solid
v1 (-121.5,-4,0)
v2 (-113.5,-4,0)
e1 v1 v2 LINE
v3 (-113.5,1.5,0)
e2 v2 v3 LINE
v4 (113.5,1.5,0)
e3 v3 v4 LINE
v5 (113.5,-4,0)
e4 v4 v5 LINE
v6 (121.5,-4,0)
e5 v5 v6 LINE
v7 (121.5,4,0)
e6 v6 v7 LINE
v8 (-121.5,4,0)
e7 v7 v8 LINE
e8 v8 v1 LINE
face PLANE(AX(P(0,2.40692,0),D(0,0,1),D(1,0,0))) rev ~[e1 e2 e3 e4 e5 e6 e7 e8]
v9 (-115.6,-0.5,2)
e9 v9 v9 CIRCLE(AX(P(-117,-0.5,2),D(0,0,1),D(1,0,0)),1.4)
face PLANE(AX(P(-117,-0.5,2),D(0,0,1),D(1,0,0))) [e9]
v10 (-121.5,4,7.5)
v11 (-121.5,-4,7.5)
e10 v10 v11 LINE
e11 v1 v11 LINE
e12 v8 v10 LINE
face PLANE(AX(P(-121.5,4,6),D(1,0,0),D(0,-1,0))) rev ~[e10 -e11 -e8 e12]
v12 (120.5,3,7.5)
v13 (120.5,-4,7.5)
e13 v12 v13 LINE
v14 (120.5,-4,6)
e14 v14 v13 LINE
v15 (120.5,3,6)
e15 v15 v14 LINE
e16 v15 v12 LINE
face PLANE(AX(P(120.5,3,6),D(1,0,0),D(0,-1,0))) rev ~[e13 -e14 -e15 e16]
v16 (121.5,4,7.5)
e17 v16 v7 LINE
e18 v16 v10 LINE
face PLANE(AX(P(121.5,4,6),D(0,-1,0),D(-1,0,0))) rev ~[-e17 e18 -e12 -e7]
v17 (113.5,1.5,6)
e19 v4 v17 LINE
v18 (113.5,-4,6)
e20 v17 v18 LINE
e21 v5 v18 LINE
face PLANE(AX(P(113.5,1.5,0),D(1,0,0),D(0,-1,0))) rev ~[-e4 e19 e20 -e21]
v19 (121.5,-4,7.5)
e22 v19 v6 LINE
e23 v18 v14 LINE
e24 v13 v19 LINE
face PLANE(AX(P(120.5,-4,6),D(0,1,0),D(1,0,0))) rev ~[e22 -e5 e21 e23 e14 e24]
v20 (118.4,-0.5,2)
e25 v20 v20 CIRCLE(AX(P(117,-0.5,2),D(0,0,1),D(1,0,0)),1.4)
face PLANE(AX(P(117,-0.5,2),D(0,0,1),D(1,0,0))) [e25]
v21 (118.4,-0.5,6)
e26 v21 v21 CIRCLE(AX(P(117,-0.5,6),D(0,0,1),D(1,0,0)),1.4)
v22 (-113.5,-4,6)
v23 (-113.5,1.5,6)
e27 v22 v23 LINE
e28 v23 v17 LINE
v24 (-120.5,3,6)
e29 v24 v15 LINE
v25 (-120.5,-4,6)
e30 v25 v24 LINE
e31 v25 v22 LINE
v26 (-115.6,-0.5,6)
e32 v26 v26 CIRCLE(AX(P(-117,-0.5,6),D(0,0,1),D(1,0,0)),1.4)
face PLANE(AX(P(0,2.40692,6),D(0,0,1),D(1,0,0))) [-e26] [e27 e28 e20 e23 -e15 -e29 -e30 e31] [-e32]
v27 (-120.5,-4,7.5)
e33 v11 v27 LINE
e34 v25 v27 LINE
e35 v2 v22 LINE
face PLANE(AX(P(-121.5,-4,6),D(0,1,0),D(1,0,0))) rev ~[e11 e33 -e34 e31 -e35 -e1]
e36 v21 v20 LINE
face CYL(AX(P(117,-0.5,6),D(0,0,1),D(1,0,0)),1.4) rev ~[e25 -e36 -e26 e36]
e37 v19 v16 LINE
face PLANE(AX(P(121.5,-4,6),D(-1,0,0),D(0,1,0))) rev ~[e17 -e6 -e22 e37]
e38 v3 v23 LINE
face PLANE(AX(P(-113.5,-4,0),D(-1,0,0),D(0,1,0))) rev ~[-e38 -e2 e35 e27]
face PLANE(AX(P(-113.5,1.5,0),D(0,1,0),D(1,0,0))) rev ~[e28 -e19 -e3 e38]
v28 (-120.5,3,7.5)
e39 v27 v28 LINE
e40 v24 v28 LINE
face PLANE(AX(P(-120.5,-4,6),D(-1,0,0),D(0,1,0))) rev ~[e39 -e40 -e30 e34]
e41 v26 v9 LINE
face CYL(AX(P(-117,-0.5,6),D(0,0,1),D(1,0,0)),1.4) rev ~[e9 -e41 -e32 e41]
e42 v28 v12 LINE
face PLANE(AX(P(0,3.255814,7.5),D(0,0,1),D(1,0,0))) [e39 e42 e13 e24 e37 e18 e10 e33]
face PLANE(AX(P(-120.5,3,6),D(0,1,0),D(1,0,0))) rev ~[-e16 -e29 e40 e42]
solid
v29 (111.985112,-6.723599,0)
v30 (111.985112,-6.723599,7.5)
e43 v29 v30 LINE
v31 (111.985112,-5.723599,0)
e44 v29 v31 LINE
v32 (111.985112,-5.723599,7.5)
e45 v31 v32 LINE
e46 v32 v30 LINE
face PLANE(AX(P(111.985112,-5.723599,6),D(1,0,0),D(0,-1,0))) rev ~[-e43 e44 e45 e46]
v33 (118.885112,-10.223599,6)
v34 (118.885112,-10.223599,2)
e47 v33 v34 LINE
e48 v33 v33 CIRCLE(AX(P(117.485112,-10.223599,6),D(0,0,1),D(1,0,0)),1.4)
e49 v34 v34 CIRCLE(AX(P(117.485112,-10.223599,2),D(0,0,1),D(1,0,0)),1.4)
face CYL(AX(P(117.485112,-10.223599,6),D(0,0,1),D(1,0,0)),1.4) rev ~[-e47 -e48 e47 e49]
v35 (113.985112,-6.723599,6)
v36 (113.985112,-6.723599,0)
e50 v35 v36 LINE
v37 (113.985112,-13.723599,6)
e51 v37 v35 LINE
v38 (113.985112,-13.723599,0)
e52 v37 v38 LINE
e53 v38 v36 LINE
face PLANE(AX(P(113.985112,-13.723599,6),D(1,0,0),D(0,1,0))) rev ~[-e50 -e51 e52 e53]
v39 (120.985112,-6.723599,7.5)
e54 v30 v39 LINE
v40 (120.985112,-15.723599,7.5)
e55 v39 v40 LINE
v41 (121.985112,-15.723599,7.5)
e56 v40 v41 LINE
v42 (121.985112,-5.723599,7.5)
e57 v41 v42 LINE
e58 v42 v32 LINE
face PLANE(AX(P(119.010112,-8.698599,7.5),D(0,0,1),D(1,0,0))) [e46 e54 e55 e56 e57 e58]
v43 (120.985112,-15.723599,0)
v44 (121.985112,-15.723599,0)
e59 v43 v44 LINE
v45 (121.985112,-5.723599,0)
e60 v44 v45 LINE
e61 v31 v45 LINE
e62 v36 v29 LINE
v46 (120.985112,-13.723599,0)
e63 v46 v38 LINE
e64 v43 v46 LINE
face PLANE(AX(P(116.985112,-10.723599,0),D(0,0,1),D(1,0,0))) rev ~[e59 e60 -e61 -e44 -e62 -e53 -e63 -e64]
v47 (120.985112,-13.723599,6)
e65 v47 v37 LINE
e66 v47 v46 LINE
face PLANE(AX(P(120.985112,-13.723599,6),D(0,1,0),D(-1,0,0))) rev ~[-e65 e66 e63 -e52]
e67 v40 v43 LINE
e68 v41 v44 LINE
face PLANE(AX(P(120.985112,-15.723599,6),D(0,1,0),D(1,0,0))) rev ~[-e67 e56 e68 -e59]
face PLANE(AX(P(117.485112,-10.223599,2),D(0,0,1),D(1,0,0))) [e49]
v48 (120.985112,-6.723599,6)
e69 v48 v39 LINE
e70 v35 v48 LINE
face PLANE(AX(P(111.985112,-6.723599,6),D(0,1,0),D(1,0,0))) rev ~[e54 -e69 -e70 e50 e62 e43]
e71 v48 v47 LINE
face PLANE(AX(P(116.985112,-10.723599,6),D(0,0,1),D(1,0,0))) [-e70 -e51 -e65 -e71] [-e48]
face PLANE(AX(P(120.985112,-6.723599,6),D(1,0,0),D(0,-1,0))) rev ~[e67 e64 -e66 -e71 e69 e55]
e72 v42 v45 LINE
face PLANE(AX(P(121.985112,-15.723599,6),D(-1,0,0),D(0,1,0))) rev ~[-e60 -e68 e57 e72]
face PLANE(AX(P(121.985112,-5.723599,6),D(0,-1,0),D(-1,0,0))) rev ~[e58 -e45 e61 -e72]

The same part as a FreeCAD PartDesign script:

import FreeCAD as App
import Part
import Sketcher

V = App.Vector


def add_polygon(sketch, points):
    """Adds a closed chain of lines whose ends are joined by coincident constraints."""
    first, n = sketch.GeometryCount, len(points)
    for a, b in zip(points, points[1:] + points[:1]):
        sketch.addGeometry(Part.LineSegment(App.Vector(*a, 0), App.Vector(*b, 0)), False)
    for i in range(n):
        sketch.addConstraint(Sketcher.Constraint("Coincident", first + i, 2, first + (i + 1) % n, 1))

doc = App.newDocument("Part")
body = doc.addObject("PartDesign::Body", "Body")

# Sketch on XY plane
sketch1 = doc.addObject("Sketcher::SketchObject", "Sketch")
body.addObject(sketch1)
sketch1.AttachmentSupport = (doc.XY_Plane, [""])
sketch1.MapMode = "FlatFace"
add_polygon(sketch1, [(113.5, -4), (121.5, -4), (121.5, 4), (-121.5, 4), (-121.5, -4), (-113.5, -4), (-113.5, 1.5), (113.5, 1.5)])  # lines 0-7
sketch1.addConstraint([
    Sketcher.Constraint("Horizontal", 0),
    Sketcher.Constraint("Vertical", 1),
    Sketcher.Constraint("Horizontal", 2),
    Sketcher.Constraint("Vertical", 3),
    Sketcher.Constraint("Horizontal", 4),
    Sketcher.Constraint("Vertical", 5),
    Sketcher.Constraint("Horizontal", 6),
    Sketcher.Constraint("Vertical", 7),
    Sketcher.Constraint("Symmetric", 0, 2, 2, 2, -1, 1),
    Sketcher.Constraint("Symmetric", 4, 2, 7, 2, -2),
    Sketcher.Constraint("Equal", 4, 1),
    Sketcher.Constraint("DistanceX", 0, 1, 0, 2, 8.0),
    Sketcher.Constraint("DistanceX", 2, 2, 2, 1, 243.0),
    Sketcher.Constraint("DistanceY", 5, 1, 5, 2, 5.5),
])
pad1 = doc.addObject("PartDesign::Pad", "Pad")
body.addObject(pad1)
pad1.Profile = sketch1
pad1.Length = 6

# Sketch on XY plane
sketch2 = doc.addObject("Sketcher::SketchObject", "Sketch001")
body.addObject(sketch2)
sketch2.AttachmentSupport = (doc.XY_Plane, [""])
sketch2.MapMode = "FlatFace"
sketch2.AttachmentOffset = App.Placement(V(0, 0, 6), App.Rotation())
sketch2.addGeometry([
    Part.Circle(V(-117, -0.5, 0), V(0, 0, 1), 1.4),
    Part.Circle(V(117, -0.5, 0), V(0, 0, 1), 1.4),
], False)
sketch2.addConstraint([
    Sketcher.Constraint("Equal", 0, 1),
    Sketcher.Constraint("Symmetric", 0, 3, 1, 3, -2),
    Sketcher.Constraint("Diameter", 0, 2.8),
    Sketcher.Constraint("DistanceX", 0, 3, -1, 1, 117.0),
    Sketcher.Constraint("DistanceY", 0, 3, -1, 1, 0.5),
])
pocket1 = doc.addObject("PartDesign::Pocket", "Pocket")
body.addObject(pocket1)
pocket1.Profile = sketch2
pocket1.Length = 4

# Sketch on XY plane
sketch3 = doc.addObject("Sketcher::SketchObject", "Sketch002")
body.addObject(sketch3)
sketch3.AttachmentSupport = (doc.XY_Plane, [""])
sketch3.MapMode = "FlatFace"
sketch3.AttachmentOffset = App.Placement(V(0, 0, 6), App.Rotation())
add_polygon(sketch3, [(121.5, 4), (-121.5, 4), (-121.5, -4), (-120.5, -4), (-120.5, 3), (120.5, 3), (120.5, -4), (121.5, -4)])  # lines 0-7
sketch3.addConstraint([
    Sketcher.Constraint("Horizontal", 0),
    Sketcher.Constraint("Vertical", 1),
    Sketcher.Constraint("Horizontal", 2),
    Sketcher.Constraint("Vertical", 3),
    Sketcher.Constraint("Horizontal", 4),
    Sketcher.Constraint("Vertical", 5),
    Sketcher.Constraint("Horizontal", 6),
    Sketcher.Constraint("Vertical", 7),
    Sketcher.Constraint("Symmetric", 0, 2, 6, 2, -1, 1),
    Sketcher.Constraint("Symmetric", 2, 2, 5, 2, -2),
    Sketcher.Constraint("DistanceX", 0, 2, 0, 1, 243.0),
    Sketcher.Constraint("DistanceX", 2, 1, 2, 2, 1.0),
    Sketcher.Constraint("DistanceY", 1, 2, 1, 1, 8.0),
    Sketcher.Constraint("DistanceY", 3, 1, 3, 2, 7.0),
])
pad2 = doc.addObject("PartDesign::Pad", "Pad001")
body.addObject(pad2)
pad2.Profile = sketch3
pad2.Length = 1.5
body2 = doc.addObject("PartDesign::Body", "Body001")

# Sketch on XY plane
sketch4 = doc.addObject("Sketcher::SketchObject", "Sketch003")
body2.addObject(sketch4)
sketch4.AttachmentSupport = (doc.getObject("XY_Plane001"), [""])
sketch4.MapMode = "FlatFace"
add_polygon(sketch4, [(111.985112, -5.723599), (111.985112, -15.723599), (121.985112, -15.723599), (121.985112, -5.723599)])  # lines 0-3
sketch4.addConstraint([
    Sketcher.Constraint("Vertical", 0),
    Sketcher.Constraint("Horizontal", 1),
    Sketcher.Constraint("Vertical", 2),
    Sketcher.Constraint("Horizontal", 3),
    Sketcher.Constraint("Equal", 3, 0),
    Sketcher.Constraint("DistanceX", 1, 1, 1, 2, 10.0),
    Sketcher.Constraint("DistanceY", 0, 2, -1, 1, 15.723599),
    Sketcher.Constraint("DistanceX", -1, 1, 0, 2, 111.985112),
])
pad3 = doc.addObject("PartDesign::Pad", "Pad002")
body2.addObject(pad3)
pad3.Profile = sketch4
pad3.Length = 6

# Sketch on XY plane
sketch5 = doc.addObject("Sketcher::SketchObject", "Sketch004")
body2.addObject(sketch5)
sketch5.AttachmentSupport = (doc.getObject("XY_Plane001"), [""])
sketch5.MapMode = "FlatFace"
sketch5.AttachmentOffset = App.Placement(V(0, 0, 6), App.Rotation())
sketch5.addGeometry(Part.Circle(V(117.485112, -10.223599, 0), V(0, 0, 1), 1.4), False)
sketch5.addConstraint([
    Sketcher.Constraint("Diameter", 0, 2.8),
    Sketcher.Constraint("DistanceY", 0, 3, -1, 1, 10.223599),
    Sketcher.Constraint("DistanceX", -1, 1, 0, 3, 117.485112),
])
pocket2 = doc.addObject("PartDesign::Pocket", "Pocket001")
body2.addObject(pocket2)
pocket2.Profile = sketch5
pocket2.Length = 4

# Sketch on XY plane
sketch6 = doc.addObject("Sketcher::SketchObject", "Sketch005")
body2.addObject(sketch6)
sketch6.AttachmentSupport = (doc.getObject("XY_Plane001"), [""])
sketch6.MapMode = "FlatFace"
sketch6.AttachmentOffset = App.Placement(V(0, 0, 6), App.Rotation())
add_polygon(sketch6, [(121.985112, -5.723599), (111.985112, -5.723599), (111.985112, -6.723599), (120.985112, -6.723599), (120.985112, -15.723599), (121.985112, -15.723599)])  # lines 0-5
sketch6.addConstraint([
    Sketcher.Constraint("Horizontal", 0),
    Sketcher.Constraint("Vertical", 1),
    Sketcher.Constraint("Horizontal", 2),
    Sketcher.Constraint("Vertical", 3),
    Sketcher.Constraint("Horizontal", 4),
    Sketcher.Constraint("Vertical", 5),
    Sketcher.Constraint("Equal", 4, 1),
    Sketcher.Constraint("Equal", 2, 3),
    Sketcher.Constraint("DistanceX", 0, 2, 0, 1, 10.0),
    Sketcher.Constraint("DistanceX", 2, 1, 2, 2, 9.0),
    Sketcher.Constraint("DistanceY", 0, 2, -1, 1, 5.723599),
    Sketcher.Constraint("DistanceX", -1, 1, 0, 2, 111.985112),
])
pad4 = doc.addObject("PartDesign::Pad", "Pad003")
body2.addObject(pad4)
pad4.Profile = sketch6
pad4.Length = 1.5

# Sketch on XY plane
sketch7 = doc.addObject("Sketcher::SketchObject", "Sketch006")
body2.addObject(sketch7)
sketch7.AttachmentSupport = (doc.getObject("XY_Plane001"), [""])
sketch7.MapMode = "FlatFace"
sketch7.AttachmentOffset = App.Placement(V(0, 0, 6), App.Rotation())
add_polygon(sketch7, [(113.985112, -6.723599), (111.985112, -6.723599), (111.985112, -15.723599), (120.985112, -15.723599), (120.985112, -13.723599), (113.985112, -13.723599)])  # lines 0-5
sketch7.addConstraint([
    Sketcher.Constraint("Horizontal", 0),
    Sketcher.Constraint("Vertical", 1),
    Sketcher.Constraint("Horizontal", 2),
    Sketcher.Constraint("Vertical", 3),
    Sketcher.Constraint("Horizontal", 4),
    Sketcher.Constraint("Vertical", 5),
    Sketcher.Constraint("Equal", 2, 1),
    Sketcher.Constraint("Equal", 0, 3),
    Sketcher.Constraint("DistanceX", 0, 2, 0, 1, 2.0),
    Sketcher.Constraint("DistanceX", 2, 1, 2, 2, 9.0),
    Sketcher.Constraint("DistanceY", 0, 2, -1, 1, 6.723599),
    Sketcher.Constraint("DistanceX", -1, 1, 0, 2, 111.985112),
])
pocket3 = doc.addObject("PartDesign::Pocket", "Pocket002")
body2.addObject(pocket3)
pocket3.Profile = sketch7
pocket3.Length = 25

doc.recompute()
